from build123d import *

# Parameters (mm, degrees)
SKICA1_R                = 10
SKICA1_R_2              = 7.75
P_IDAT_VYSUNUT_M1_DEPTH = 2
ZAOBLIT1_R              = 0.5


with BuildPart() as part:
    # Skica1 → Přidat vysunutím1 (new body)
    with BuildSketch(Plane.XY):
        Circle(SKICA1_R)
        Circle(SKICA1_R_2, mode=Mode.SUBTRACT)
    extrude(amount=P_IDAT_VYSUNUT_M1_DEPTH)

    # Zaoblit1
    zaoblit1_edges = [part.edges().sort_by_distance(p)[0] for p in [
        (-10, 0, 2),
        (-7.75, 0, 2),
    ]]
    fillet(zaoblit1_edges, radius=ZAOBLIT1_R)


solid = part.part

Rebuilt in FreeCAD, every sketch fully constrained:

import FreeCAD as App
import Part
import Sketcher


def edges_at(feature, points):
    """Names of the edges that pass closest to the given points."""
    edges = feature.Shape.Edges
    near = lambda p: min(range(len(edges)), key=lambda i: edges[i].distToShape(Part.Vertex(*p))[0])
    return sorted({f"Edge{near(p) + 1}" for p in points})

doc = App.newDocument("Part")
params = doc.addObject("Spreadsheet::Sheet", "Params")
for row, (alias, value) in enumerate([
    ("sketch1_diameter", "20 mm"),
    ("sketch1_diameter2", "15.5 mm"),
    ("pad1_length", "2 mm"),
    ("fillet_radius", "0.5 mm"),
], start=1):
    params.set(f"A{row}", alias)
    params.set(f"B{row}", "=" + value)
    params.setAlias(f"B{row}", alias)

body = doc.addObject("PartDesign::Body", "Body")

sketch1 = body.newObject("Sketcher::SketchObject", "Sketch")
sketch1.AttachmentSupport = (doc.getObject("XY_Plane"), [""])
sketch1.MapMode = "FlatFace"
sketch1.addGeometry([
    Part.Circle(App.Vector(0, 0, 0), App.Vector(0, 0, 1), 10),
    Part.Circle(App.Vector(0, 0, 0), App.Vector(0, 0, 1), 8),
], False)
sketch1.addConstraint([
    Sketcher.Constraint("Coincident", 0, 3, -1, 1),
    Sketcher.Constraint("Coincident", 1, 3, -1, 1),
    Sketcher.Constraint("Diameter", 0, 20.0),
    Sketcher.Constraint("Diameter", 1, 15.5),
])
sketch1.setExpression("Constraints[2]", "Params.sketch1_diameter")
sketch1.setExpression("Constraints[3]", "Params.sketch1_diameter2")
pad1 = body.newObject("PartDesign::Pad", "Pad")
pad1.Profile = sketch1
pad1.setExpression("Length", "Params.pad1_length")
doc.recompute()

fillet = body.newObject("PartDesign::Fillet", "Fillet")
fillet.Base = (pad1, edges_at(pad1, [(-10, 0, 2), (-7.75, 0, 2)]))
fillet.setExpression("Radius", "Params.fillet_radius")

doc.recompute()
